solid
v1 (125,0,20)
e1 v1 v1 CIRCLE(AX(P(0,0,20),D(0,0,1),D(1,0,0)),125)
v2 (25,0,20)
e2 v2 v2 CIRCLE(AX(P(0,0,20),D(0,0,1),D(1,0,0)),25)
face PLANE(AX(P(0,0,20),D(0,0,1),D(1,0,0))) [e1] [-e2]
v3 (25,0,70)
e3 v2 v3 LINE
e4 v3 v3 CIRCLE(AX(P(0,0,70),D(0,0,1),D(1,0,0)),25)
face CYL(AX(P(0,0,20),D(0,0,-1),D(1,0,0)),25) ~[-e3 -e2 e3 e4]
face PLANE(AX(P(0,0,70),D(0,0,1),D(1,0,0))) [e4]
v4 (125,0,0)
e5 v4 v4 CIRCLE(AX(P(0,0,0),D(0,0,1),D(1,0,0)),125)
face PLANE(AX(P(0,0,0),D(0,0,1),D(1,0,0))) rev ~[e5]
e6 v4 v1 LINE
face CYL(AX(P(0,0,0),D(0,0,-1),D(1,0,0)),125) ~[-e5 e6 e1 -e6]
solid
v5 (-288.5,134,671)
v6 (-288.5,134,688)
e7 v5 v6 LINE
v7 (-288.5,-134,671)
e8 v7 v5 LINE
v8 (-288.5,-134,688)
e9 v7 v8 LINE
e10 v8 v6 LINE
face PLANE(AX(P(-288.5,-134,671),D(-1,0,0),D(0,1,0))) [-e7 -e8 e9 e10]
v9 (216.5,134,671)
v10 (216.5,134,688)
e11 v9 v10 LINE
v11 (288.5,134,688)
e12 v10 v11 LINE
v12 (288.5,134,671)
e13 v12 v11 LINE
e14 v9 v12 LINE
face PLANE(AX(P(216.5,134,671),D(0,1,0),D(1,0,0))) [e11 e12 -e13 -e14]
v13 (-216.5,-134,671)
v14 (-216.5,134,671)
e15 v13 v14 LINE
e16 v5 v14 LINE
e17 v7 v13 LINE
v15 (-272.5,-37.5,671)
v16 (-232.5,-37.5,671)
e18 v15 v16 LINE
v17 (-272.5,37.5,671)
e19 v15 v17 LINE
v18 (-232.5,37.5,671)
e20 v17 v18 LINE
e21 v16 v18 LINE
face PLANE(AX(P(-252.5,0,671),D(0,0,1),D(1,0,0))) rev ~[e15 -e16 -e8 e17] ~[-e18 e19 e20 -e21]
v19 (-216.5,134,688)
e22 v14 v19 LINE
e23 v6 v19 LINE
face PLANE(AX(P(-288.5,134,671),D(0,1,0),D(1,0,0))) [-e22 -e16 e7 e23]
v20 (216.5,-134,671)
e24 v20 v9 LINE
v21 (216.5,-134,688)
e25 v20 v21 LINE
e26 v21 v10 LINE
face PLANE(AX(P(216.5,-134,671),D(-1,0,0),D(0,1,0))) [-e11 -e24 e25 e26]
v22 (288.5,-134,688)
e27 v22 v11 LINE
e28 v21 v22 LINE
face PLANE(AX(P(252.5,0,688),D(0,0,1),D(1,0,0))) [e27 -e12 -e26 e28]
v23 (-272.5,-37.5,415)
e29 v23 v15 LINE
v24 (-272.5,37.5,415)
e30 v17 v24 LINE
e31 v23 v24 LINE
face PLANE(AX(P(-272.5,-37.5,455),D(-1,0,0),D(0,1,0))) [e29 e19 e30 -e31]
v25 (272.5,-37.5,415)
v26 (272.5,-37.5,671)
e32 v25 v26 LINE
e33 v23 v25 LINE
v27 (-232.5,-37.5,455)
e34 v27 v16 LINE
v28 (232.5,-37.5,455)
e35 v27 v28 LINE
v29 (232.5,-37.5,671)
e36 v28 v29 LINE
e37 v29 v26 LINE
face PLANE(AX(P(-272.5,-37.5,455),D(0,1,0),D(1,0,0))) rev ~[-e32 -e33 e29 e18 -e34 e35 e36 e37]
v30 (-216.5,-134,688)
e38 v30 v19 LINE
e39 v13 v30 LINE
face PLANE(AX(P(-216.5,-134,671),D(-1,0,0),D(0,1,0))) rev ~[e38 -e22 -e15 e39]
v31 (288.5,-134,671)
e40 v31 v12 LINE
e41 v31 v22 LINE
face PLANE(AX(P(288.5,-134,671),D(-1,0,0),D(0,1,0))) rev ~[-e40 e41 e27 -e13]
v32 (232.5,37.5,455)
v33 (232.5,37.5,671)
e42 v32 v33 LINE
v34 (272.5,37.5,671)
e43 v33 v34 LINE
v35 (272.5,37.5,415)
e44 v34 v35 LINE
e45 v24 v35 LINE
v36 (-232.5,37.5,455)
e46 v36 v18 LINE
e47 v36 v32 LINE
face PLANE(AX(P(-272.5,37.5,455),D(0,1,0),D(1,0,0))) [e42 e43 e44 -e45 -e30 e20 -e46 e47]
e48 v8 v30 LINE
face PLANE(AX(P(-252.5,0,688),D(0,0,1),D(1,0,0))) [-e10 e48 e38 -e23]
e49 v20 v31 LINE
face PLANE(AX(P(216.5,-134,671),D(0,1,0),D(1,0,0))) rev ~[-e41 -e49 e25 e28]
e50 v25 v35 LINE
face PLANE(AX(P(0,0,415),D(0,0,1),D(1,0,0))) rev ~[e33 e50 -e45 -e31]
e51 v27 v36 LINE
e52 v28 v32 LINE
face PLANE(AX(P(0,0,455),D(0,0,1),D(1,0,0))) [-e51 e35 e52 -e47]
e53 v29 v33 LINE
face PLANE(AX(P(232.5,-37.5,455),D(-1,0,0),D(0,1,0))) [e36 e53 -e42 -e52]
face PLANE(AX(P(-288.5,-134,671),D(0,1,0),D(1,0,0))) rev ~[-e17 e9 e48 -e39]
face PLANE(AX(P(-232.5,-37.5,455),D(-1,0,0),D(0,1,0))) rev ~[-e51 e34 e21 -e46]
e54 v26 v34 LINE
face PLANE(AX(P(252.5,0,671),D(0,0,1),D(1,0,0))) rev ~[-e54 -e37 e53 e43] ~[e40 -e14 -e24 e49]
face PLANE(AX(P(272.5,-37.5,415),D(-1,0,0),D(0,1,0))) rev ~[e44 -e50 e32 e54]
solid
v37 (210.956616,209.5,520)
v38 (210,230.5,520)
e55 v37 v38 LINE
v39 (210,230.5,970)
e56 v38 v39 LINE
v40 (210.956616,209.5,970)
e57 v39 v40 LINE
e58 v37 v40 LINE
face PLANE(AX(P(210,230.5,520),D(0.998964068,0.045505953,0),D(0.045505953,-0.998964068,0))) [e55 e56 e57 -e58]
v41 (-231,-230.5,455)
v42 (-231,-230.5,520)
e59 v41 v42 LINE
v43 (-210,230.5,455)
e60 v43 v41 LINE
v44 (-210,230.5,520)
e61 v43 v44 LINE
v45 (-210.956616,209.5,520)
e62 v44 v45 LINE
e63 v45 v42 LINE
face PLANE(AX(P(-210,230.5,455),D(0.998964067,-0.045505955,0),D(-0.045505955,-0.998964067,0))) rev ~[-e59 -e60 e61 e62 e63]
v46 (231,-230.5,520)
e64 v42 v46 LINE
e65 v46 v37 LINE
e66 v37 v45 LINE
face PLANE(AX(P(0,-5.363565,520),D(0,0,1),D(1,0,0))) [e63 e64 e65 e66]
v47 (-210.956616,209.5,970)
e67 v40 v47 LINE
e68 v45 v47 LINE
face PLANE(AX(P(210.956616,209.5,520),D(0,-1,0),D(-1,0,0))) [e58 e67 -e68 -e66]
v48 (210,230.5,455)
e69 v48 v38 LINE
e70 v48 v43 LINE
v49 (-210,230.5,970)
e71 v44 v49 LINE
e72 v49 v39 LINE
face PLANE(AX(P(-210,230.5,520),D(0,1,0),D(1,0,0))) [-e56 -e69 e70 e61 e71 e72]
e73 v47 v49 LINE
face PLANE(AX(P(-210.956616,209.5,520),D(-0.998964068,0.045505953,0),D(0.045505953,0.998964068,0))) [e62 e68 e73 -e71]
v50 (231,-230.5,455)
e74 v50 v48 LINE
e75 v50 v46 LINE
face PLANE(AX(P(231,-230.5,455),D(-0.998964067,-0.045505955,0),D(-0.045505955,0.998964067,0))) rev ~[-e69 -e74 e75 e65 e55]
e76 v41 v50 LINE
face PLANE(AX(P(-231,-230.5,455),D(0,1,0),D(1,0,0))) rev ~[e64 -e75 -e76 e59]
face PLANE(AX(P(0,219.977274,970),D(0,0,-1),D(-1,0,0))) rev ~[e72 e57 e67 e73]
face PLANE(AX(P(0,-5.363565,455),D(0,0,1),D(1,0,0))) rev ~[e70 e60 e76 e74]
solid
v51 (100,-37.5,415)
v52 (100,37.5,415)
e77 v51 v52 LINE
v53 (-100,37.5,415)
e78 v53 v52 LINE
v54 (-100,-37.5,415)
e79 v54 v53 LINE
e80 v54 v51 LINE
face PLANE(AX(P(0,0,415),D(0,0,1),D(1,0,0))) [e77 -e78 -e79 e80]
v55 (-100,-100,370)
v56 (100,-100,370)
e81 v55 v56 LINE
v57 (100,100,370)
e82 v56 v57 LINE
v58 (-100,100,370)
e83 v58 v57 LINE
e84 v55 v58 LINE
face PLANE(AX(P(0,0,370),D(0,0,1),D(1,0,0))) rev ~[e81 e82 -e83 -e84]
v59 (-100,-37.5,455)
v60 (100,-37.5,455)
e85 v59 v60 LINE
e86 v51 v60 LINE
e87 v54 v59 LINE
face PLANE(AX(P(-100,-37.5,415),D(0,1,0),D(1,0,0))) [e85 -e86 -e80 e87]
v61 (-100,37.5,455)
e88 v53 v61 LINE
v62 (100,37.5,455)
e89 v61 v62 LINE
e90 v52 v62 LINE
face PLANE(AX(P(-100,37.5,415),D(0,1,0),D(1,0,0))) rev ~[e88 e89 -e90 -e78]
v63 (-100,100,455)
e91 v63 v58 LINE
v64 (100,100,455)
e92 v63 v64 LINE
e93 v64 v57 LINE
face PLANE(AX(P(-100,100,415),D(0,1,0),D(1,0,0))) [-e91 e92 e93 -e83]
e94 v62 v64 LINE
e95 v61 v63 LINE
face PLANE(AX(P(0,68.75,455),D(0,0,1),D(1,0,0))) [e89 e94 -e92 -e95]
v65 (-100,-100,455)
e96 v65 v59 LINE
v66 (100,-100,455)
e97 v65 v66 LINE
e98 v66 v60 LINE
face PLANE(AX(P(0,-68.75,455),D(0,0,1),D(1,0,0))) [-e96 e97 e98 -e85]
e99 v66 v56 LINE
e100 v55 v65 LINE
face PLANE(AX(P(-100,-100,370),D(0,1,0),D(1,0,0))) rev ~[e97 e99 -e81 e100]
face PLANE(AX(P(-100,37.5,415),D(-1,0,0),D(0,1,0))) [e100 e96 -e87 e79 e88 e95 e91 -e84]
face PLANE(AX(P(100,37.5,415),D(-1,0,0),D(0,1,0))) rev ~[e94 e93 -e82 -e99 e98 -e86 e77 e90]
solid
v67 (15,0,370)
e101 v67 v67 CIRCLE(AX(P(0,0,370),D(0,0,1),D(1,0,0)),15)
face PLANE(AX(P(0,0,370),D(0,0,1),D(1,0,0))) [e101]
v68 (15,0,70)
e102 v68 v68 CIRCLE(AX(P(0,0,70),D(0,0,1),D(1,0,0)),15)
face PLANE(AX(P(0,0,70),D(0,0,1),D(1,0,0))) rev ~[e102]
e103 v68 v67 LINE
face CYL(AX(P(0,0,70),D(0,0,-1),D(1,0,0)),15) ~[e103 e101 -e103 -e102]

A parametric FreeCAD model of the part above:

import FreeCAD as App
import Part
import Sketcher
Q = App.Units.Quantity


def add_polygon(sketch, points):
    """Adds a closed chain of lines whose ends are joined by coincident constraints."""
    first, n = sketch.GeometryCount, len(points)
    for a, b in zip(points, points[1:] + points[:1]):
        sketch.addGeometry(Part.LineSegment(App.Vector(*a, 0), App.Vector(*b, 0)), False)
    for i in range(n):
        sketch.addConstraint(Sketcher.Constraint("Coincident", first + i, 2, first + (i + 1) % n, 1))

doc = App.newDocument("Part")
body = doc.addObject("PartDesign::Body", "Body")

sketch1 = doc.addObject("Sketcher::SketchObject", "Sketch")
body.addObject(sketch1)
sketch1.AttachmentSupport = (doc.XY_Plane, [""])
sketch1.MapMode = "FlatFace"
sketch1.addGeometry(Part.Circle(App.Vector(0, 0, 0), App.Vector(0, 0, 1), 125), False)
sketch1.addConstraint([
    Sketcher.Constraint("Coincident", 0, 3, -1, 1),
    Sketcher.Constraint("Diameter", 0, Q("250 mm")),
])
pad1 = doc.addObject("PartDesign::Pad", "Pad")
body.addObject(pad1)
pad1.Profile = sketch1
pad1.Length = 20

sketch2 = doc.addObject("Sketcher::SketchObject", "Sketch001")
body.addObject(sketch2)
sketch2.AttachmentSupport = (doc.XY_Plane, [""])
sketch2.MapMode = "FlatFace"
sketch2.AttachmentOffset = App.Placement(App.Vector(0, 0, 20), App.Rotation())
sketch2.addGeometry(Part.Circle(App.Vector(0, 0, 0), App.Vector(0, 0, 1), 25), False)
sketch2.addConstraint([
    Sketcher.Constraint("Coincident", 0, 3, -1, 1),
    Sketcher.Constraint("Diameter", 0, Q("50 mm")),
])
pad2 = doc.addObject("PartDesign::Pad", "Pad001")
body.addObject(pad2)
pad2.Profile = sketch2
pad2.Length = 50
body2 = doc.addObject("PartDesign::Body", "Body001")

sketch3 = doc.addObject("Sketcher::SketchObject", "Sketch002")
body2.addObject(sketch3)
sketch3.AttachmentSupport = (doc.getObject("XY_Plane001"), [""])
sketch3.MapMode = "FlatFace"
sketch3.AttachmentOffset = App.Placement(App.Vector(0, 0, 70), App.Rotation())
sketch3.addGeometry(Part.Circle(App.Vector(0, 0, 0), App.Vector(0, 0, 1), 15), False)
sketch3.addConstraint([
    Sketcher.Constraint("Coincident", 0, 3, -1, 1),
    Sketcher.Constraint("Diameter", 0, Q("30 mm")),
])
pad3 = doc.addObject("PartDesign::Pad", "Pad002")
body2.addObject(pad3)
pad3.Profile = sketch3
pad3.Length = 300
body3 = doc.addObject("PartDesign::Body", "Body002")

sketch4 = doc.addObject("Sketcher::SketchObject", "Sketch003")
body3.addObject(sketch4)
sketch4.AttachmentSupport = (doc.getObject("XY_Plane002"), [""])
sketch4.MapMode = "FlatFace"
sketch4.AttachmentOffset = App.Placement(App.Vector(0, 0, 370), App.Rotation())
add_polygon(sketch4, [(-100, 100), (-100, -100), (100, -100), (100, 100)])
sketch4.addConstraint([
    Sketcher.Constraint("Vertical", 0),
    Sketcher.Constraint("Horizontal", 1),
    Sketcher.Constraint("Vertical", 2),
    Sketcher.Constraint("Horizontal", 3),
    Sketcher.Constraint("Symmetric", 0, 2, 2, 2, -1, 1),
    Sketcher.Constraint("Equal", 3, 0),
    Sketcher.Constraint("DistanceX", 1, 1, 1, 2, Q("200 mm")),
])
pad4 = doc.addObject("PartDesign::Pad", "Pad003")
body3.addObject(pad4)
pad4.Profile = sketch4
pad4.Length = 45

sketch5 = doc.addObject("Sketcher::SketchObject", "Sketch004")
body3.addObject(sketch5)
sketch5.AttachmentSupport = (doc.getObject("XY_Plane002"), [""])
sketch5.MapMode = "FlatFace"
sketch5.AttachmentOffset = App.Placement(App.Vector(0, 0, 415), App.Rotation())
add_polygon(sketch5, [(-100, 100), (-100, 38), (100, 38), (100, 100)])
add_polygon(sketch5, [(-100, -38), (-100, -100), (100, -100), (100, -38)])
sketch5.addConstraint([
    Sketcher.Constraint("Vertical", 0),
    Sketcher.Constraint("Horizontal", 1),
    Sketcher.Constraint("Vertical", 2),
    Sketcher.Constraint("Horizontal", 3),
    Sketcher.Constraint("Vertical", 4),
    Sketcher.Constraint("Horizontal", 5),
    Sketcher.Constraint("Vertical", 6),
    Sketcher.Constraint("Horizontal", 7),
    Sketcher.Constraint("Symmetric", 2, 2, 4, 2, -1, 1),
    Sketcher.Constraint("Symmetric", 0, 2, 6, 2, -1, 1),
    Sketcher.Constraint("Vertical", 3, 2, 4, 2),
    Sketcher.Constraint("DistanceX", 1, 1, 1, 2, Q("200 mm")),
    Sketcher.Constraint("DistanceY", 0, 2, 0, 1, Q("62.5 mm")),
    Sketcher.Constraint("DistanceY", -1, 1, 2, 2, Q("100 mm")),
])
pad5 = doc.addObject("PartDesign::Pad", "Pad004")
body3.addObject(pad5)
pad5.Profile = sketch5
pad5.Length = 40
body4 = doc.addObject("PartDesign::Body", "Body003")

sketch6 = doc.addObject("Sketcher::SketchObject", "Sketch005")
body4.addObject(sketch6)
sketch6.AttachmentSupport = (doc.getObject("XY_Plane003"), [""])
sketch6.MapMode = "FlatFace"
sketch6.AttachmentOffset = App.Placement(App.Vector(0, 0, 415), App.Rotation())
add_polygon(sketch6, [(-272, 38), (-272, -38), (272, -38), (272, 38)])
sketch6.addConstraint([
    Sketcher.Constraint("Vertical", 0),
    Sketcher.Constraint("Horizontal", 1),
    Sketcher.Constraint("Vertical", 2),
    Sketcher.Constraint("Horizontal", 3),
    Sketcher.Constraint("Symmetric", 0, 2, 2, 2, -1, 1),
    Sketcher.Constraint("DistanceX", 1, 1, 1, 2, Q("545 mm")),
    Sketcher.Constraint("DistanceY", 0, 2, 0, 1, Q("75 mm")),
])
pad6 = doc.addObject("PartDesign::Pad", "Pad005")
body4.addObject(pad6)
pad6.Profile = sketch6
pad6.Length = 40

sketch7 = doc.addObject("Sketcher::SketchObject", "Sketch006")
body4.addObject(sketch7)
sketch7.AttachmentSupport = (doc.getObject("XY_Plane003"), [""])
sketch7.MapMode = "FlatFace"
sketch7.AttachmentOffset = App.Placement(App.Vector(0, 0, 455), App.Rotation())
add_polygon(sketch7, [(-272, 38), (-272, -38), (-232, -38), (-232, 38)])
add_polygon(sketch7, [(232, 38), (232, -38), (272, -38), (272, 38)])
sketch7.addConstraint([
    Sketcher.Constraint("Vertical", 0),
    Sketcher.Constraint("Horizontal", 1),
    Sketcher.Constraint("Vertical", 2),
    Sketcher.Constraint("Horizontal", 3),
    Sketcher.Constraint("Vertical", 4),
    Sketcher.Constraint("Horizontal", 5),
    Sketcher.Constraint("Vertical", 6),
    Sketcher.Constraint("Horizontal", 7),
    Sketcher.Constraint("Symmetric", 2, 2, 4, 2, -1, 1),
    Sketcher.Constraint("Symmetric", 0, 2, 6, 2, -1, 1),
    Sketcher.Constraint("Horizontal", 1, 2, 4, 2),
    Sketcher.Constraint("DistanceX", 1, 1, 1, 2, Q("40 mm")),
    Sketcher.Constraint("DistanceY", 0, 2, 0, 1, Q("75 mm")),
    Sketcher.Constraint("DistanceX", 1, 2, 4, 2, Q("465 mm")),
])
pad7 = doc.addObject("PartDesign::Pad", "Pad006")
body4.addObject(pad7)
pad7.Profile = sketch7
pad7.Length = 216

sketch8 = doc.addObject("Sketcher::SketchObject", "Sketch007")
body4.addObject(sketch8)
sketch8.AttachmentSupport = (doc.getObject("XY_Plane003"), [""])
sketch8.MapMode = "FlatFace"
sketch8.AttachmentOffset = App.Placement(App.Vector(0, 0, 671), App.Rotation())
add_polygon(sketch8, [(-288, 134), (-288, -134), (-216, -134), (-216, 134)])
add_polygon(sketch8, [(216, 134), (216, -134), (288, -134), (288, 134)])
sketch8.addConstraint([
    Sketcher.Constraint("Vertical", 0),
    Sketcher.Constraint("Horizontal", 1),
    Sketcher.Constraint("Vertical", 2),
    Sketcher.Constraint("Horizontal", 3),
    Sketcher.Constraint("Vertical", 4),
    Sketcher.Constraint("Horizontal", 5),
    Sketcher.Constraint("Vertical", 6),
    Sketcher.Constraint("Horizontal", 7),
    Sketcher.Constraint("Symmetric", 2, 2, 4, 2, -1, 1),
    Sketcher.Constraint("Symmetric", 0, 2, 6, 2, -1, 1),
    Sketcher.Constraint("Horizontal", 1, 2, 4, 2),
    Sketcher.Constraint("DistanceX", 1, 1, 1, 2, Q("72 mm")),
    Sketcher.Constraint("DistanceY", 0, 2, 0, 1, Q("268 mm")),
    Sketcher.Constraint("DistanceX", 1, 2, 4, 2, Q("433 mm")),
])
pad8 = doc.addObject("PartDesign::Pad", "Pad007")
body4.addObject(pad8)
pad8.Profile = sketch8
pad8.Length = 17
body5 = doc.addObject("PartDesign::Body", "Body004")

sketch9 = doc.addObject("Sketcher::SketchObject", "Sketch008")
body5.addObject(sketch9)
sketch9.AttachmentSupport = (doc.getObject("XY_Plane004"), [""])
sketch9.MapMode = "FlatFace"
sketch9.AttachmentOffset = App.Placement(App.Vector(0, 0, 455), App.Rotation())
add_polygon(sketch9, [(-210, 230), (-231, -230), (231, -230), (210, 230)])
sketch9.addConstraint([
    Sketcher.Constraint("Horizontal", 1),
    Sketcher.Constraint("Horizontal", 3),
    Sketcher.Constraint("Equal", 0, 2),
    Sketcher.Constraint("DistanceX", 1, 1, 1, 2, Q("462 mm")),
    Sketcher.Constraint("DistanceX", 3, 2, 3, 1, Q("420 mm")),
    Sketcher.Constraint("DistanceX", 0, 2, -1, 1, Q("231 mm")),
    Sketcher.Constraint("DistanceY", 1, 2, 2, 2, Q("461 mm")),
    Sketcher.Constraint("DistanceY", 0, 2, -1, 1, Q("230.5 mm")),
])
pad9 = doc.addObject("PartDesign::Pad", "Pad008")
body5.addObject(pad9)
pad9.Profile = sketch9
pad9.Length = 65

sketch10 = doc.addObject("Sketcher::SketchObject", "Sketch009")
body5.addObject(sketch10)
sketch10.AttachmentSupport = (doc.getObject("XY_Plane004"), [""])
sketch10.MapMode = "FlatFace"
sketch10.AttachmentOffset = App.Placement(App.Vector(0, 0, 520), App.Rotation())
add_polygon(sketch10, [(210, 230), (-210, 230), (-211, 210), (211, 210)])
sketch10.addConstraint([
    Sketcher.Constraint("Horizontal", 0),
    Sketcher.Constraint("Horizontal", 2),
    Sketcher.Constraint("Equal", 1, 3),
    Sketcher.Constraint("DistanceX", 0, 2, 0, 1, Q("420 mm")),
    Sketcher.Constraint("DistanceX", 0, 2, -1, 1, Q("210 mm")),
    Sketcher.Constraint("DistanceY", 1, 2, 0, 2, Q("21 mm")),
    Sketcher.Constraint("DistanceY", -1, 1, 0, 2, Q("230.5 mm")),
    Sketcher.Constraint("DistanceX", 2, 1, 2, 2, Q("421.913232 mm")),
])
pad10 = doc.addObject("PartDesign::Pad", "Pad009")
body5.addObject(pad10)
pad10.Profile = sketch10
pad10.Length = 450

doc.recompute()
